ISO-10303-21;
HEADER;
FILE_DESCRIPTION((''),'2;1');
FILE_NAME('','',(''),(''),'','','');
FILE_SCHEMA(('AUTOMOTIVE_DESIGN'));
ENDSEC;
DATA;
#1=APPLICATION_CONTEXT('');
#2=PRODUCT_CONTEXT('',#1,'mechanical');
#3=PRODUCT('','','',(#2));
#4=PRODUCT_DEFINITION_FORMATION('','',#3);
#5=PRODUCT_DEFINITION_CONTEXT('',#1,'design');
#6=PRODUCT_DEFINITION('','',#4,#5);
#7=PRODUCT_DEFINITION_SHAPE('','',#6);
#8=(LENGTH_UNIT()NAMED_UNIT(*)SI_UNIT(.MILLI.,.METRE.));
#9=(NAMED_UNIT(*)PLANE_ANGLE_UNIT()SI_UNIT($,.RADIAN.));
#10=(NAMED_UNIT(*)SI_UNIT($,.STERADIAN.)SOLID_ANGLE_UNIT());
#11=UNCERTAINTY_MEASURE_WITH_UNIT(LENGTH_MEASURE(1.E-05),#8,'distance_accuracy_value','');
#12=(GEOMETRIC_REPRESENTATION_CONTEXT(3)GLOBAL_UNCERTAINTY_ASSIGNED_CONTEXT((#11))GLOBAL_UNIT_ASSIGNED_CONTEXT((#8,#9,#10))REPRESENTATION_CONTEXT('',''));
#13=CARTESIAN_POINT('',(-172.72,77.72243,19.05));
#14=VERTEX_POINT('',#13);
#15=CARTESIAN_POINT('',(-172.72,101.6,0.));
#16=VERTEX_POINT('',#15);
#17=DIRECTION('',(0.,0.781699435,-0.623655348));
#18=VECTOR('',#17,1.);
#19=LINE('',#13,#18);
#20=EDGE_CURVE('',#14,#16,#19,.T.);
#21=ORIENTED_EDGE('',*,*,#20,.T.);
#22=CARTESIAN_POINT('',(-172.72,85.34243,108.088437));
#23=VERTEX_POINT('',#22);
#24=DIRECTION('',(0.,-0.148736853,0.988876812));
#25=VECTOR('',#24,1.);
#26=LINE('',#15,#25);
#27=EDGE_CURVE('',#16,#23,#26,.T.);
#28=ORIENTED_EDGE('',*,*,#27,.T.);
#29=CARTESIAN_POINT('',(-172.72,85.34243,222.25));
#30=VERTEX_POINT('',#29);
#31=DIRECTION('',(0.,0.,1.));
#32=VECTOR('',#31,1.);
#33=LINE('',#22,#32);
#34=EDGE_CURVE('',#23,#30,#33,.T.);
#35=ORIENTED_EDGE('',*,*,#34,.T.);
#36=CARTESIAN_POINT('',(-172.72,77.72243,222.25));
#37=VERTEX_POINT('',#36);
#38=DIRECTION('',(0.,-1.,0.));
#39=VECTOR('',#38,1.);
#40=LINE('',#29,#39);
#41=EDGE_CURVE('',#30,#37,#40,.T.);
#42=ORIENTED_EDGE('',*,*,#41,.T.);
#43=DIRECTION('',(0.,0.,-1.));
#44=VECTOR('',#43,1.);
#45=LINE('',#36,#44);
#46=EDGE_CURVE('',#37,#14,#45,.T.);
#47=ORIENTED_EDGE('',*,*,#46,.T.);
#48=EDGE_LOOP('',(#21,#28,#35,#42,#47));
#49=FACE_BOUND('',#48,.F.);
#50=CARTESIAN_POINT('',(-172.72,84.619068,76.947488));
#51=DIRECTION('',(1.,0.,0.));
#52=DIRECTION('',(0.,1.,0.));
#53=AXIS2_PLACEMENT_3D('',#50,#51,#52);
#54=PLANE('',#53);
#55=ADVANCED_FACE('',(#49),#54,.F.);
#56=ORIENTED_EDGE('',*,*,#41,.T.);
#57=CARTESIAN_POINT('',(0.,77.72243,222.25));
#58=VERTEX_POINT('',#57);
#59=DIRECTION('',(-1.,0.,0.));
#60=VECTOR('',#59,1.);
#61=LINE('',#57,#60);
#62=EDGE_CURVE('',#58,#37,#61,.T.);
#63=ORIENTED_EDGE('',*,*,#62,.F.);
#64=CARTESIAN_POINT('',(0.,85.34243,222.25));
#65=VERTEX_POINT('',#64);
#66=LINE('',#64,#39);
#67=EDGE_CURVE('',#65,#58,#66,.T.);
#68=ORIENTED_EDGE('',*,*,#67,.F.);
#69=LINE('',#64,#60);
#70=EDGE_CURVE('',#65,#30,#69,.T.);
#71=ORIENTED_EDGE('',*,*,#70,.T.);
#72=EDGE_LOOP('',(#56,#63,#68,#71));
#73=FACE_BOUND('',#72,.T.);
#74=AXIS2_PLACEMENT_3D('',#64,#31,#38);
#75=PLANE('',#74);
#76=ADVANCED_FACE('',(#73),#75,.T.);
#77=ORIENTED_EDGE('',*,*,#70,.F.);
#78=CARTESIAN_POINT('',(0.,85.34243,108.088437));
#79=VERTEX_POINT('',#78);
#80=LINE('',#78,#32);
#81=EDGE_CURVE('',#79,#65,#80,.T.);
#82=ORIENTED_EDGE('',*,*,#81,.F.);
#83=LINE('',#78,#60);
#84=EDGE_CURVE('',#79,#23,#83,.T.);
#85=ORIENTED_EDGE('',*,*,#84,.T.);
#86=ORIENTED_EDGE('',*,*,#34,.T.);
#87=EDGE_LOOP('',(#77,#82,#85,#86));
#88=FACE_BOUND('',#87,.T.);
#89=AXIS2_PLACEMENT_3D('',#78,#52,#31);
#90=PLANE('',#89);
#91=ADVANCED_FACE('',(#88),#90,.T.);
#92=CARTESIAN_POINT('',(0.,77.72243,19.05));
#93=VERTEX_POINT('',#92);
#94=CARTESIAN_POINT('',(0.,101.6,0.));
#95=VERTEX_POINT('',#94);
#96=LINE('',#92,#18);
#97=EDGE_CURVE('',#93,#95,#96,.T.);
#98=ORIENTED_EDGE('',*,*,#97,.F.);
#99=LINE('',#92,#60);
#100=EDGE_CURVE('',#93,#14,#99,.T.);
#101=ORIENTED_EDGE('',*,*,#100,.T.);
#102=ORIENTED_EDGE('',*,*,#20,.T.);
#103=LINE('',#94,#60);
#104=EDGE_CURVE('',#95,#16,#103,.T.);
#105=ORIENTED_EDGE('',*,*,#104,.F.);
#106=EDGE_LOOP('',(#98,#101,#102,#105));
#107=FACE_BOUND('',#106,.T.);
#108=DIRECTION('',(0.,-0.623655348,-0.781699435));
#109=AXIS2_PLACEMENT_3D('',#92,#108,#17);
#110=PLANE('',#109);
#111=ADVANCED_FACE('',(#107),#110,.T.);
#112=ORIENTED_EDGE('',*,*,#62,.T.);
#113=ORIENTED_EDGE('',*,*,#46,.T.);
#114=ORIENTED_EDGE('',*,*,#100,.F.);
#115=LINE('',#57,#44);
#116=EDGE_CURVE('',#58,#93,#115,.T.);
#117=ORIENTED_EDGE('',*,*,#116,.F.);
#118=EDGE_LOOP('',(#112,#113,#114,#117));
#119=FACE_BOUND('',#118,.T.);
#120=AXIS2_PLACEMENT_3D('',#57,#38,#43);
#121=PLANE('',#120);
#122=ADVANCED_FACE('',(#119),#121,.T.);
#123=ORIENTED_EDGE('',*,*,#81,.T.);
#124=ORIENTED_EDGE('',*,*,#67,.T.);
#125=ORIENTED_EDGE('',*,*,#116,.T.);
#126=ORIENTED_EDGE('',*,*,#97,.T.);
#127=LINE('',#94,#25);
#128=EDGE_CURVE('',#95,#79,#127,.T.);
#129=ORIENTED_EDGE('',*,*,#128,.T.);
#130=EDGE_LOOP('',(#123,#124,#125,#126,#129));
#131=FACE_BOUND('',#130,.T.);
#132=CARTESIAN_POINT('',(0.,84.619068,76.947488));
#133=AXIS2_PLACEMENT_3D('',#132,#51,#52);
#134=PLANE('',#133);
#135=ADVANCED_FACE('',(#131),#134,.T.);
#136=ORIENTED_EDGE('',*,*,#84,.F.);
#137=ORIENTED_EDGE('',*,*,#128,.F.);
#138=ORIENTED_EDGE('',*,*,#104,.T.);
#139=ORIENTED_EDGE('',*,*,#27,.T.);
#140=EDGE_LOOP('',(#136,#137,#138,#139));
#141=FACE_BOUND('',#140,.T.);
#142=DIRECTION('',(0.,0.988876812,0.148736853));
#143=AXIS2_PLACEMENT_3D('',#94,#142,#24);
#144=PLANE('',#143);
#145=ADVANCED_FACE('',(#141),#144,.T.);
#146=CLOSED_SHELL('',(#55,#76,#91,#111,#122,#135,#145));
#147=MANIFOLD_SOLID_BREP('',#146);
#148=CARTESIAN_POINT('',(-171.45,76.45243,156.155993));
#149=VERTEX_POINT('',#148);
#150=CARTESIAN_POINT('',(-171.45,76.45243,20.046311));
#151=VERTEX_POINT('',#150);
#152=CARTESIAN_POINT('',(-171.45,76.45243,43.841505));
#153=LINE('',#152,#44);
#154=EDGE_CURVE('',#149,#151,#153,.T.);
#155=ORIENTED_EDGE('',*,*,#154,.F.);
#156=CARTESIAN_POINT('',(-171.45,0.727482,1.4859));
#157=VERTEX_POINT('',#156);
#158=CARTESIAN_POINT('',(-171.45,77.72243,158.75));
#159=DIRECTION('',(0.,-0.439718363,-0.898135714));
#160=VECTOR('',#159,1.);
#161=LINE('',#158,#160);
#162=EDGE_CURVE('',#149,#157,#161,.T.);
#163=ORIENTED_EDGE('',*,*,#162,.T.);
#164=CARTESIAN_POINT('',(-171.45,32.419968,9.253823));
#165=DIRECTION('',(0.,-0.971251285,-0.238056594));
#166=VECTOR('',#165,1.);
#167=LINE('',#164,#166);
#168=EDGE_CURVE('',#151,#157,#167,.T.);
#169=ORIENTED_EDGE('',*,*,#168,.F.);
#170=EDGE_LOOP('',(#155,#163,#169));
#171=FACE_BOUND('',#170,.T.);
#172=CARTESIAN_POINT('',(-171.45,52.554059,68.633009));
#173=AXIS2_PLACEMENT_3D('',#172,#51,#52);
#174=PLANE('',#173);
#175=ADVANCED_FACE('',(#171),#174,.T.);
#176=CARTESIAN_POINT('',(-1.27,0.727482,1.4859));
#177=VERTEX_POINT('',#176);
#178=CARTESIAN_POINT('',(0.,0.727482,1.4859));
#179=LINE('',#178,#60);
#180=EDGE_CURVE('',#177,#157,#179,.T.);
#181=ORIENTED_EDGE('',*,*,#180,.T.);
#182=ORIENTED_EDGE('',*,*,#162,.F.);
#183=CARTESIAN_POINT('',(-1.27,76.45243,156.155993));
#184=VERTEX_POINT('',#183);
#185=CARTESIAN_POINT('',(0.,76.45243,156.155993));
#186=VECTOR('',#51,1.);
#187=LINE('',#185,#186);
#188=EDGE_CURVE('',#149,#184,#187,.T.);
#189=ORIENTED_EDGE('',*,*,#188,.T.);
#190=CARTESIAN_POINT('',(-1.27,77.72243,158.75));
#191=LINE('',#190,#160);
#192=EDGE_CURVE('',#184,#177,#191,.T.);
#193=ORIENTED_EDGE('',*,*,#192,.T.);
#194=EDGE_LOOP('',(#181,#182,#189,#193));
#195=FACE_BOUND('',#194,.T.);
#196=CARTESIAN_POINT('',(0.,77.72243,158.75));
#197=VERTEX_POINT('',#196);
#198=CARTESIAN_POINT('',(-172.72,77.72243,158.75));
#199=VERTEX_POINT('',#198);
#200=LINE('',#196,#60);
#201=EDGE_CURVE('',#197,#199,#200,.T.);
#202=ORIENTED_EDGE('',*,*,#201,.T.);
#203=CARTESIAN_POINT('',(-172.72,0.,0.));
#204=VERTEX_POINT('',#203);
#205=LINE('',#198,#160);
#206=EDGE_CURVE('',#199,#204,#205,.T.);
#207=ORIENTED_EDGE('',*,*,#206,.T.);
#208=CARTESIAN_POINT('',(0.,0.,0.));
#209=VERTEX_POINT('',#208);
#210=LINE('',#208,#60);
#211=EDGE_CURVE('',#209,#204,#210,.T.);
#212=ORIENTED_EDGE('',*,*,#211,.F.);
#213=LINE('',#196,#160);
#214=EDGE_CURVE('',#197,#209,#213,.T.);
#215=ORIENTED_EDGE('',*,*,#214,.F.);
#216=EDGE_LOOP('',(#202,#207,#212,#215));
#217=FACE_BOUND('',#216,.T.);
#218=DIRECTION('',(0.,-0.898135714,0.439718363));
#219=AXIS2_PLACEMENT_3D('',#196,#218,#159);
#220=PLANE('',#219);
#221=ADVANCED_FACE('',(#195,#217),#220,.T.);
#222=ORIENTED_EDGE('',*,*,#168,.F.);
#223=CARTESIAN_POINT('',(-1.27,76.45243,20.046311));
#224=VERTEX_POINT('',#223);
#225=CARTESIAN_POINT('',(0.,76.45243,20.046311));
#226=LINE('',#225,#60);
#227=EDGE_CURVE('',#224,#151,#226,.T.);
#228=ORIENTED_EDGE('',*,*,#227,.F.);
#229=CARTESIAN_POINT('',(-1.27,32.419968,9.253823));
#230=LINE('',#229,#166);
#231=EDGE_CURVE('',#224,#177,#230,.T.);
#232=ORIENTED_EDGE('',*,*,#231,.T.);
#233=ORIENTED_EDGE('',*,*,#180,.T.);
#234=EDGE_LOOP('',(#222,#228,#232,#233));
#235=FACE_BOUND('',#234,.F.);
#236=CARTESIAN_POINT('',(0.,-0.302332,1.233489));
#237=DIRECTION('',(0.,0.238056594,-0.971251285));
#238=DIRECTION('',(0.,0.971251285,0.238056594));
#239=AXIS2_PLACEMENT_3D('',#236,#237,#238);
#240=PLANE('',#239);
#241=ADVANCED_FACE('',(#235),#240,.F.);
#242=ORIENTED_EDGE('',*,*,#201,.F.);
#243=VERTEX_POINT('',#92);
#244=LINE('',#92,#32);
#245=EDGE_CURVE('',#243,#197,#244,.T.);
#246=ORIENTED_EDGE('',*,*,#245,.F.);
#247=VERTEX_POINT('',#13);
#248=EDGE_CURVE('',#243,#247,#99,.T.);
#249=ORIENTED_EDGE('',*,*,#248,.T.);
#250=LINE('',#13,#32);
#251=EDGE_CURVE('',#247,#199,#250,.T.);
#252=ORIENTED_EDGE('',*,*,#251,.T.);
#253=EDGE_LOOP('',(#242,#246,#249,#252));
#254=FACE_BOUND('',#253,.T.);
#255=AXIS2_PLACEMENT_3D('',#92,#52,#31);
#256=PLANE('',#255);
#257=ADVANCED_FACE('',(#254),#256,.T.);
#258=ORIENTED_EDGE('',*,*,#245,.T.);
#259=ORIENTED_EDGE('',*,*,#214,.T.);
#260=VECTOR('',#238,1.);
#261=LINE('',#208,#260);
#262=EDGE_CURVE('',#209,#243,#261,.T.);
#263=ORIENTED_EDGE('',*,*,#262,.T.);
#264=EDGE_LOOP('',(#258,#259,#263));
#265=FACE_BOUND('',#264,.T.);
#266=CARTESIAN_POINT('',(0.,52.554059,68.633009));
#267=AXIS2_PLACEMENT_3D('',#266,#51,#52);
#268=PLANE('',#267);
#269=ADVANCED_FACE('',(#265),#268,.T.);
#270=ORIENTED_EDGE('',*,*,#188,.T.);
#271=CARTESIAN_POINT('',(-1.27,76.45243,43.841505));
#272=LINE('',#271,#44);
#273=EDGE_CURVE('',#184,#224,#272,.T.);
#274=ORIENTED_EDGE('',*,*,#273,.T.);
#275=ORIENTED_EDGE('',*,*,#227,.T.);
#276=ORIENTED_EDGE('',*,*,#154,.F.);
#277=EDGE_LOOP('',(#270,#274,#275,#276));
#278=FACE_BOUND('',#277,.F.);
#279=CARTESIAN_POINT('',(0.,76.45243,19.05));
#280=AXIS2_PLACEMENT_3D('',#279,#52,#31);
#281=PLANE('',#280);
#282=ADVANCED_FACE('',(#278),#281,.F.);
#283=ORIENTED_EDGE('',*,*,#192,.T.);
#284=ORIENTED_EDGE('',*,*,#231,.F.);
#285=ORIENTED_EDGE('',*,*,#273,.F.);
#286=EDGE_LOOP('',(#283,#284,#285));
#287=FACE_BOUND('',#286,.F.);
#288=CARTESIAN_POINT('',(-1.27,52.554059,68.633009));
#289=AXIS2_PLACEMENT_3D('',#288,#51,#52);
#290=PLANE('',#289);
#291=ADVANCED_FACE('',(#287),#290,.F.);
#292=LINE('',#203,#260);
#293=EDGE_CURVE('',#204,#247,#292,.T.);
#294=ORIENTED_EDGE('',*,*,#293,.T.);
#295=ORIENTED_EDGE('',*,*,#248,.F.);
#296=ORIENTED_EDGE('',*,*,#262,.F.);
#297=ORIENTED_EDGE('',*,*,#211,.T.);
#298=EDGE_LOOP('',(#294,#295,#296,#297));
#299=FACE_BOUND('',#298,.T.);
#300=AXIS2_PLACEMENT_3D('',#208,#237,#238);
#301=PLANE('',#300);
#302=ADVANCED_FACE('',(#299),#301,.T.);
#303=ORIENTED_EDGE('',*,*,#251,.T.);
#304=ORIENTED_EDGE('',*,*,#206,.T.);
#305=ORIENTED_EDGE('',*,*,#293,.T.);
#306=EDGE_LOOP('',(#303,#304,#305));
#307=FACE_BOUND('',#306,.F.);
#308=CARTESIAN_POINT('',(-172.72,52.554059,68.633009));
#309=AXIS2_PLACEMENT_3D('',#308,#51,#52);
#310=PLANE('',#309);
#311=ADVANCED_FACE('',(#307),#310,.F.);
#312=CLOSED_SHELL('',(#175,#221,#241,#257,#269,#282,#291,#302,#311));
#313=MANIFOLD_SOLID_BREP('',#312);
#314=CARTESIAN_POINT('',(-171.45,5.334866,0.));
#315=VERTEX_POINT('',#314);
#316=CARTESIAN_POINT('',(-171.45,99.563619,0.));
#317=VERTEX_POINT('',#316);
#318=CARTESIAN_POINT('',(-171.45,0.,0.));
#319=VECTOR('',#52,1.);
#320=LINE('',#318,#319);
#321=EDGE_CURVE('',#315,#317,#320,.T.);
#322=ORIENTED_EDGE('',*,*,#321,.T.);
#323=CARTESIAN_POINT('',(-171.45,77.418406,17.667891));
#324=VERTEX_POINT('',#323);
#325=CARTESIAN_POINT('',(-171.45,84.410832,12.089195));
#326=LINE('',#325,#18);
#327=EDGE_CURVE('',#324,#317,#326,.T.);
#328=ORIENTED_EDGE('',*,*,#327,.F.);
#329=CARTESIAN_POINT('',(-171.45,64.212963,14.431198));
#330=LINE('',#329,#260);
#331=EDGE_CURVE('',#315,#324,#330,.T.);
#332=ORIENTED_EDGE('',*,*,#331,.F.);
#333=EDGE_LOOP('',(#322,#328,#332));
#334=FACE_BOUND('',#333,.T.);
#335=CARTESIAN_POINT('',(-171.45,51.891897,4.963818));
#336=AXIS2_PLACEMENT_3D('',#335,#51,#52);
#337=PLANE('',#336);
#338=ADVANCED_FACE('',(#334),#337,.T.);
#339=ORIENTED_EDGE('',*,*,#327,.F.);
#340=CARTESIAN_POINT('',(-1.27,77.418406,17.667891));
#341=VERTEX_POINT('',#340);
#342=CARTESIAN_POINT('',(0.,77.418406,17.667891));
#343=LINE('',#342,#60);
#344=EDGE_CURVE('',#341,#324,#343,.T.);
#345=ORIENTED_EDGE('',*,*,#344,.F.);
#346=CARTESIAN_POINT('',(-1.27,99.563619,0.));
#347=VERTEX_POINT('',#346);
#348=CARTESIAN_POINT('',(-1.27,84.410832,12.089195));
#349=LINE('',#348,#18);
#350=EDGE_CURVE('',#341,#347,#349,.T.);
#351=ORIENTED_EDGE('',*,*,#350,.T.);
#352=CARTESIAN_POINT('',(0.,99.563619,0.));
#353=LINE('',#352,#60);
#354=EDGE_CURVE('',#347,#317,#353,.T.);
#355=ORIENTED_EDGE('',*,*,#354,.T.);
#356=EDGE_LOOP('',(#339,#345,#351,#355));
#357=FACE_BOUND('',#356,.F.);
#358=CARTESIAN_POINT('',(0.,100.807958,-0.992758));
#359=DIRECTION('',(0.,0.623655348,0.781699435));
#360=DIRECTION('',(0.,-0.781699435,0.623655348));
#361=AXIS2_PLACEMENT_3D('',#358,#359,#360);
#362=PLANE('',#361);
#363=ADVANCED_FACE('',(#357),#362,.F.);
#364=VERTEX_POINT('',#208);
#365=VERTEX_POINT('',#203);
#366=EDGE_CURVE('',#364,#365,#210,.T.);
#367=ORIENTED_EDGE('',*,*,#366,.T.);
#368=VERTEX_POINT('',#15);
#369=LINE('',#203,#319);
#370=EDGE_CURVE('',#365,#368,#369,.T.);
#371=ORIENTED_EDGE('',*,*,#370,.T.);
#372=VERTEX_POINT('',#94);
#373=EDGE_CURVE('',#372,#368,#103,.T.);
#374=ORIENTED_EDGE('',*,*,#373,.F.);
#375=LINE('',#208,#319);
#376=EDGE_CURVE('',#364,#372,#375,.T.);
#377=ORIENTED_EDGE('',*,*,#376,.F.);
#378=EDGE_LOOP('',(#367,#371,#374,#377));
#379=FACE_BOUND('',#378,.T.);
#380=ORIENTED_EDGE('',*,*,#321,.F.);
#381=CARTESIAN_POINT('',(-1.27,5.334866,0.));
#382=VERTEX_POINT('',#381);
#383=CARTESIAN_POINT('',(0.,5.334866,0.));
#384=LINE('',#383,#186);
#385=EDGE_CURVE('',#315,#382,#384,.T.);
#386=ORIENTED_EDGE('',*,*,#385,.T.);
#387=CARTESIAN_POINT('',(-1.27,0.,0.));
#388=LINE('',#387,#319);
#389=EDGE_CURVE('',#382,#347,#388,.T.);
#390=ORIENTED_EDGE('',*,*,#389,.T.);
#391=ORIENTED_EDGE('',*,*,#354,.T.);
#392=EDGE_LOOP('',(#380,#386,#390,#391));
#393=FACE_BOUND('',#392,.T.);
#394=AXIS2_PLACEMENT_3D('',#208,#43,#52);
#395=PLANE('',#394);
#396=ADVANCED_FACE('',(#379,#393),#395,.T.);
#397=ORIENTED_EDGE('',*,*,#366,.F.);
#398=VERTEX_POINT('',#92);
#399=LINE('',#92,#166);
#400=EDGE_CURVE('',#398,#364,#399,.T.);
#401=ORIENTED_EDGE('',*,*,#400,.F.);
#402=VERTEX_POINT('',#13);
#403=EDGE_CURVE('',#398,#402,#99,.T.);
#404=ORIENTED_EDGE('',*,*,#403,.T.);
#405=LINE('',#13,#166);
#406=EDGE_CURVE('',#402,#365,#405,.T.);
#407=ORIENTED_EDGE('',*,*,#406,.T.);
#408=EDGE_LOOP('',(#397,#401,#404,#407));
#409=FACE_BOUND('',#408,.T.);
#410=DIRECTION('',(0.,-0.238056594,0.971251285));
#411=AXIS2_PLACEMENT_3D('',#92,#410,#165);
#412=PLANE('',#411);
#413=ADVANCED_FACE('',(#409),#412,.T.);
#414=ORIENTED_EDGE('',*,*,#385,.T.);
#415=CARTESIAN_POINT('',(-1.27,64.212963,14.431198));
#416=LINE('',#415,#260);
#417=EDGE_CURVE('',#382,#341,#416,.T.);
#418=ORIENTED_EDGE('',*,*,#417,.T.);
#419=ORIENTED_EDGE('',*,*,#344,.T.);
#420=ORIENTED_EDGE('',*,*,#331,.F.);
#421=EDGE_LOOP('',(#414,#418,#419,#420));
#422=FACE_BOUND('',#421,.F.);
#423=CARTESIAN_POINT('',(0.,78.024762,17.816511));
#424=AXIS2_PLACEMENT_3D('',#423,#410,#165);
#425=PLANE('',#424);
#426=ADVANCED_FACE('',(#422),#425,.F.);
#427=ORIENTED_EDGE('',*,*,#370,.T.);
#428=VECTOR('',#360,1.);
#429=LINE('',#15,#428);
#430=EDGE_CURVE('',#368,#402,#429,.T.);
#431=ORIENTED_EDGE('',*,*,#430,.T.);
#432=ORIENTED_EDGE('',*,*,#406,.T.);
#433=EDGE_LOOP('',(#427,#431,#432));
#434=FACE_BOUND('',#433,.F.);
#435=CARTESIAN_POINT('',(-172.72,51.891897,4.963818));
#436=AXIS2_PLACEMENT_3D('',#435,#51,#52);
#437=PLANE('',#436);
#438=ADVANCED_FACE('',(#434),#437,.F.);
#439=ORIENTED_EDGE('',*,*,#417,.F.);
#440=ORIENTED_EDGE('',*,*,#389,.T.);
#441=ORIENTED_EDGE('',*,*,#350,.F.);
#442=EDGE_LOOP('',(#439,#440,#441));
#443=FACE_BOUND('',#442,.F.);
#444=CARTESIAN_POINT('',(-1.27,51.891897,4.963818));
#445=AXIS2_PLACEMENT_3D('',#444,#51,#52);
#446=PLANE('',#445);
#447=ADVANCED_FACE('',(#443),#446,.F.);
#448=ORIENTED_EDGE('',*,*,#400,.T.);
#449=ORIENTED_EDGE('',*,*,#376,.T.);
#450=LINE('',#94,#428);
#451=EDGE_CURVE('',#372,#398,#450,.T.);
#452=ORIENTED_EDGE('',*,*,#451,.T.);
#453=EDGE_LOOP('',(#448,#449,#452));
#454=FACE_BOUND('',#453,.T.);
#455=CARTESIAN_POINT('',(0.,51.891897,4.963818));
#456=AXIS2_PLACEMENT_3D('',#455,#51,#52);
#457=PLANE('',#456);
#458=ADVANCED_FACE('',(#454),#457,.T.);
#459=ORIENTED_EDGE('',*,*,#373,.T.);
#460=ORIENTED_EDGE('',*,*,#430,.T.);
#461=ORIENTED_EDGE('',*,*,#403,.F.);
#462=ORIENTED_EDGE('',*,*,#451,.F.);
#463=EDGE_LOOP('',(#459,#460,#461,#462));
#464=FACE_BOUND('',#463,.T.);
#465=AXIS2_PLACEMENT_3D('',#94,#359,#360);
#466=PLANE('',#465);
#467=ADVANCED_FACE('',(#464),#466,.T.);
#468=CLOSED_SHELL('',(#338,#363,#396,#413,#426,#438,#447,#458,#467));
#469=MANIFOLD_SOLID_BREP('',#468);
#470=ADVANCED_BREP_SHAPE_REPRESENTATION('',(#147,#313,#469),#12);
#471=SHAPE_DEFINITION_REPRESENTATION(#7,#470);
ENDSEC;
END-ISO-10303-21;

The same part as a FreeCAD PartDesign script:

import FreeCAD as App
import Part
import Sketcher
Q = App.Units.Quantity


def faces_at(feature, points):
    """Names of the faces that lie closest to the given points."""
    faces = feature.Shape.Faces
    near = lambda p: min(range(len(faces)), key=lambda i: faces[i].distToShape(Part.Vertex(*p))[0])
    return sorted({f"Face{near(p) + 1}" for p in points})


def add_polygon(sketch, points):
    """Adds a closed chain of lines whose ends are joined by coincident constraints."""
    first, n = sketch.GeometryCount, len(points)
    for a, b in zip(points, points[1:] + points[:1]):
        sketch.addGeometry(Part.LineSegment(App.Vector(*a, 0), App.Vector(*b, 0)), False)
    for i in range(n):
        sketch.addConstraint(Sketcher.Constraint("Coincident", first + i, 2, first + (i + 1) % n, 1))

doc = App.newDocument("Part")
body = doc.addObject("PartDesign::Body", "Body")

# Sketch on YZ plane
sketch1 = doc.addObject("Sketcher::SketchObject", "Sketch")
body.addObject(sketch1)
sketch1.AttachmentSupport = (doc.YZ_Plane, [""])
sketch1.MapMode = "FlatFace"
add_polygon(sketch1, [(78, 159), (0, 0), (78, 19)])  # lines 0-2
sketch1.addConstraint(Sketcher.Constraint("Vertical", 2))
sketch1.addConstraint(Sketcher.Constraint("Coincident", 0, 2, -1, 1))
sketch1.addConstraint(Sketcher.Constraint("DistanceY", 2, 1, 2, 2, Q("5.5 in")))
sketch1.addConstraint(Sketcher.Constraint("DistanceY", -1, 1, 1, 2, Q("0.75 in")))
sketch1.addConstraint(Sketcher.Constraint("Distance", 1, Q("80.022988 mm")))
pad1 = doc.addObject("PartDesign::Pad", "Pad")
body.addObject(pad1)
pad1.Profile = sketch1
pad1.Length = Q("6.8 in")
pad1.Reversed = True
doc.recompute()

thickness = doc.addObject("PartDesign::Thickness", "Thickness")
body.addObject(thickness)
thickness.Base = (pad1, faces_at(pad1, [(-86.36, 38.861, 79.375)]))
thickness.Value = Q("0.05 in")
thickness.Reversed = True
thickness.Join = "Arc"
body2 = doc.addObject("PartDesign::Body", "Body001")

# Sketch on YZ plane
sketch2 = doc.addObject("Sketcher::SketchObject", "Sketch001")
body2.addObject(sketch2)
sketch2.AttachmentSupport = (doc.getObject("YZ_Plane001"), [""])
sketch2.MapMode = "FlatFace"
add_polygon(sketch2, [(78, 19), (102, 0), (85, 108), (85, 222), (78, 222)])  # lines 0-4
sketch2.addConstraint(Sketcher.Constraint("Vertical", 2))
sketch2.addConstraint(Sketcher.Constraint("Horizontal", 3))
sketch2.addConstraint(Sketcher.Constraint("Vertical", 4))
sketch2.addConstraint(Sketcher.Constraint("PointOnObject", 0, 2, -1))
sketch2.addConstraint(Sketcher.Constraint("DistanceY", 4, 2, 4, 1, Q("8 in")))
sketch2.addConstraint(Sketcher.Constraint("DistanceX", 3, 2, 3, 1, Q("0.3 in")))
sketch2.addConstraint(Sketcher.Constraint("DistanceX", -1, 1, 0, 2, Q("4 in")))
sketch2.addConstraint(Sketcher.Constraint("DistanceY", -1, 1, 2, 2, Q("8.75 in")))
sketch2.addConstraint(Sketcher.Constraint("Distance", 1, Q("109.304249 mm")))
sketch2.addConstraint(Sketcher.Constraint("DistanceY", 2, 1, 2, 2, Q("114.161563 mm")))
pad2 = doc.addObject("PartDesign::Pad", "Pad001")
body2.addObject(pad2)
pad2.Profile = sketch2
pad2.Length = Q("6.8 in")
pad2.Reversed = True
body3 = doc.addObject("PartDesign::Body", "Body002")

# Sketch on YZ plane
sketch3 = doc.addObject("Sketcher::SketchObject", "Sketch002")
body3.addObject(sketch3)
sketch3.AttachmentSupport = (doc.getObject("YZ_Plane002"), [""])
sketch3.MapMode = "FlatFace"
add_polygon(sketch3, [(78, 19), (0, 0), (102, 0)])  # lines 0-2
sketch3.addConstraint(Sketcher.Constraint("Horizontal", 1))
sketch3.addConstraint(Sketcher.Constraint("Coincident", 0, 2, -1, 1))
sketch3.addConstraint(Sketcher.Constraint("DistanceX", 1, 1, 1, 2, Q("4 in")))
sketch3.addConstraint(Sketcher.Constraint("DistanceY", -1, 1, 2, 2, Q("0.75 in")))
sketch3.addConstraint(Sketcher.Constraint("Distance", 0, Q("80.022988 mm")))
pad3 = doc.addObject("PartDesign::Pad", "Pad002")
body3.addObject(pad3)
pad3.Profile = sketch3
pad3.Length = Q("6.8 in")
pad3.Reversed = True
doc.recompute()

thickness2 = doc.addObject("PartDesign::Thickness", "Thickness001")
body3.addObject(thickness2)
thickness2.Base = (pad3, faces_at(pad3, [(-86.36, 50.8, 0)]))
thickness2.Value = Q("0.05 in")
thickness2.Reversed = True
thickness2.Join = "Arc"

doc.recompute()
